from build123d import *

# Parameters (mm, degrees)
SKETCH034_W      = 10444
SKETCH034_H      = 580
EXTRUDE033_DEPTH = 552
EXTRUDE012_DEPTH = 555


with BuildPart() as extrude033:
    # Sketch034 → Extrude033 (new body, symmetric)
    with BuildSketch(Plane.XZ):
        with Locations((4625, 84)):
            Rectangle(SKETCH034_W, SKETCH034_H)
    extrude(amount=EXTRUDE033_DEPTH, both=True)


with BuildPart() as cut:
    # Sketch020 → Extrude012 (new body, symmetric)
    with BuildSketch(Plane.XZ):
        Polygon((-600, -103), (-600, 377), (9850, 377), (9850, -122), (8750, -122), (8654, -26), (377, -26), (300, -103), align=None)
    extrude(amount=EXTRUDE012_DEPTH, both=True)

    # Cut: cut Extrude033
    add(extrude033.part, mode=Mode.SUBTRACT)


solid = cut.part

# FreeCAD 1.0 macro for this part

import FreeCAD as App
import Part
import Sketcher

V = App.Vector
Q = App.Units.Quantity


def add_polygon(sketch, points):
    """Adds a closed chain of lines whose ends are joined by coincident constraints."""
    first, n = sketch.GeometryCount, len(points)
    for a, b in zip(points, points[1:] + points[:1]):
        sketch.addGeometry(Part.LineSegment(App.Vector(*a, 0), App.Vector(*b, 0)), False)
    for i in range(n):
        sketch.addConstraint(Sketcher.Constraint("Coincident", first + i, 2, first + (i + 1) % n, 1))

doc = App.newDocument("Part")
params = doc.addObject("Spreadsheet::Sheet", "Params")
for row, (alias, value) in enumerate([
    ("sketch1_width", "10444 mm"),
    ("sketch1_height", "580 mm"),
    ("pad1_length", "1104 mm"),
    ("sketch2_width", "900 mm"),
    ("sketch2_width2", "8277 mm"),
    ("sketch2_width3", "1100 mm"),
    ("sketch2_width4", "10450 mm"),
    ("sketch2_height", "480 mm"),
    ("pad2_length", "1110 mm"),
], start=1):
    params.set(f"A{row}", alias)
    params.set(f"B{row}", "=" + value)
    params.setAlias(f"B{row}", alias)

body = doc.addObject("PartDesign::Body", "Body")

# Sketch on XZ plane
sketch1 = body.newObject("Sketcher::SketchObject", "Sketch")
sketch1.AttachmentSupport = (doc.getObject("XZ_Plane"), [""])
sketch1.MapMode = "FlatFace"
add_polygon(sketch1, [(-597, 374), (-597, -206), (9847, -206), (9847, 374)])  # lines 0-3
sketch1.addConstraint([
    Sketcher.Constraint("Vertical", 0),
    Sketcher.Constraint("Horizontal", 1),
    Sketcher.Constraint("Vertical", 2),
    Sketcher.Constraint("Horizontal", 3),
    Sketcher.Constraint("DistanceX", 1, 1, 1, 2, Q("10444 mm")),
    Sketcher.Constraint("DistanceY", 0, 2, 0, 1, Q("580 mm")),
    Sketcher.Constraint("DistanceX", 0, 2, -1, 1, Q("597 mm")),
    Sketcher.Constraint("DistanceY", 0, 2, -1, 1, Q("206 mm")),
])
sketch1.setExpression("Constraints[8]", "Params.sketch1_width")
sketch1.setExpression("Constraints[9]", "Params.sketch1_height")
pad1 = body.newObject("PartDesign::Pad", "Pad")
pad1.Profile = sketch1
pad1.setExpression("Length", "Params.pad1_length")
pad1.Midplane = True
body2 = doc.addObject("PartDesign::Body", "Body001")

# Sketch on XZ plane
sketch2 = body2.newObject("Sketcher::SketchObject", "Sketch001")
sketch2.AttachmentSupport = (doc.getObject("XZ_Plane001"), [""])
sketch2.MapMode = "FlatFace"
add_polygon(sketch2, [(-600, 377), (-600, -103), (300, -103), (377, -26), (8654, -26), (8750, -122), (9850, -122), (9850, 377)])  # lines 0-7
sketch2.addConstraint([
    Sketcher.Constraint("Vertical", 0),
    Sketcher.Constraint("Horizontal", 1),
    Sketcher.Constraint("Horizontal", 3),
    Sketcher.Constraint("Horizontal", 5),
    Sketcher.Constraint("Vertical", 6),
    Sketcher.Constraint("Horizontal", 7),
    Sketcher.Constraint("Perpendicular", 2, 4),
    Sketcher.Constraint("DistanceX", 1, 1, 1, 2, Q("900 mm")),
    Sketcher.Constraint("DistanceX", 3, 1, 3, 2, Q("8277 mm")),
    Sketcher.Constraint("DistanceX", 5, 1, 5, 2, Q("1100 mm")),
    Sketcher.Constraint("DistanceX", 7, 2, 7, 1, Q("10450 mm")),
    Sketcher.Constraint("DistanceY", 0, 2, 0, 1, Q("480 mm")),
    Sketcher.Constraint("DistanceY", 6, 1, 6, 2, Q("499 mm")),
    Sketcher.Constraint("Angle", 2, Q("45 deg")),
    Sketcher.Constraint("DistanceX", 0, 2, -1, 1, Q("600 mm")),
    Sketcher.Constraint("DistanceY", 0, 2, -1, 1, Q("103 mm")),
])
sketch2.setExpression("Constraints[15]", "Params.sketch2_width")
sketch2.setExpression("Constraints[16]", "Params.sketch2_width2")
sketch2.setExpression("Constraints[17]", "Params.sketch2_width3")
sketch2.setExpression("Constraints[18]", "Params.sketch2_width4")
sketch2.setExpression("Constraints[19]", "Params.sketch2_height")
pad2 = body2.newObject("PartDesign::Pad", "Pad001")
pad2.Profile = sketch2
pad2.setExpression("Length", "Params.pad2_length")
pad2.Midplane = True
doc.recompute()

boolean = body2.newObject("PartDesign::Boolean", "Boolean")
boolean.Type = "Cut"
boolean.addObjects([body])

doc.recompute()
